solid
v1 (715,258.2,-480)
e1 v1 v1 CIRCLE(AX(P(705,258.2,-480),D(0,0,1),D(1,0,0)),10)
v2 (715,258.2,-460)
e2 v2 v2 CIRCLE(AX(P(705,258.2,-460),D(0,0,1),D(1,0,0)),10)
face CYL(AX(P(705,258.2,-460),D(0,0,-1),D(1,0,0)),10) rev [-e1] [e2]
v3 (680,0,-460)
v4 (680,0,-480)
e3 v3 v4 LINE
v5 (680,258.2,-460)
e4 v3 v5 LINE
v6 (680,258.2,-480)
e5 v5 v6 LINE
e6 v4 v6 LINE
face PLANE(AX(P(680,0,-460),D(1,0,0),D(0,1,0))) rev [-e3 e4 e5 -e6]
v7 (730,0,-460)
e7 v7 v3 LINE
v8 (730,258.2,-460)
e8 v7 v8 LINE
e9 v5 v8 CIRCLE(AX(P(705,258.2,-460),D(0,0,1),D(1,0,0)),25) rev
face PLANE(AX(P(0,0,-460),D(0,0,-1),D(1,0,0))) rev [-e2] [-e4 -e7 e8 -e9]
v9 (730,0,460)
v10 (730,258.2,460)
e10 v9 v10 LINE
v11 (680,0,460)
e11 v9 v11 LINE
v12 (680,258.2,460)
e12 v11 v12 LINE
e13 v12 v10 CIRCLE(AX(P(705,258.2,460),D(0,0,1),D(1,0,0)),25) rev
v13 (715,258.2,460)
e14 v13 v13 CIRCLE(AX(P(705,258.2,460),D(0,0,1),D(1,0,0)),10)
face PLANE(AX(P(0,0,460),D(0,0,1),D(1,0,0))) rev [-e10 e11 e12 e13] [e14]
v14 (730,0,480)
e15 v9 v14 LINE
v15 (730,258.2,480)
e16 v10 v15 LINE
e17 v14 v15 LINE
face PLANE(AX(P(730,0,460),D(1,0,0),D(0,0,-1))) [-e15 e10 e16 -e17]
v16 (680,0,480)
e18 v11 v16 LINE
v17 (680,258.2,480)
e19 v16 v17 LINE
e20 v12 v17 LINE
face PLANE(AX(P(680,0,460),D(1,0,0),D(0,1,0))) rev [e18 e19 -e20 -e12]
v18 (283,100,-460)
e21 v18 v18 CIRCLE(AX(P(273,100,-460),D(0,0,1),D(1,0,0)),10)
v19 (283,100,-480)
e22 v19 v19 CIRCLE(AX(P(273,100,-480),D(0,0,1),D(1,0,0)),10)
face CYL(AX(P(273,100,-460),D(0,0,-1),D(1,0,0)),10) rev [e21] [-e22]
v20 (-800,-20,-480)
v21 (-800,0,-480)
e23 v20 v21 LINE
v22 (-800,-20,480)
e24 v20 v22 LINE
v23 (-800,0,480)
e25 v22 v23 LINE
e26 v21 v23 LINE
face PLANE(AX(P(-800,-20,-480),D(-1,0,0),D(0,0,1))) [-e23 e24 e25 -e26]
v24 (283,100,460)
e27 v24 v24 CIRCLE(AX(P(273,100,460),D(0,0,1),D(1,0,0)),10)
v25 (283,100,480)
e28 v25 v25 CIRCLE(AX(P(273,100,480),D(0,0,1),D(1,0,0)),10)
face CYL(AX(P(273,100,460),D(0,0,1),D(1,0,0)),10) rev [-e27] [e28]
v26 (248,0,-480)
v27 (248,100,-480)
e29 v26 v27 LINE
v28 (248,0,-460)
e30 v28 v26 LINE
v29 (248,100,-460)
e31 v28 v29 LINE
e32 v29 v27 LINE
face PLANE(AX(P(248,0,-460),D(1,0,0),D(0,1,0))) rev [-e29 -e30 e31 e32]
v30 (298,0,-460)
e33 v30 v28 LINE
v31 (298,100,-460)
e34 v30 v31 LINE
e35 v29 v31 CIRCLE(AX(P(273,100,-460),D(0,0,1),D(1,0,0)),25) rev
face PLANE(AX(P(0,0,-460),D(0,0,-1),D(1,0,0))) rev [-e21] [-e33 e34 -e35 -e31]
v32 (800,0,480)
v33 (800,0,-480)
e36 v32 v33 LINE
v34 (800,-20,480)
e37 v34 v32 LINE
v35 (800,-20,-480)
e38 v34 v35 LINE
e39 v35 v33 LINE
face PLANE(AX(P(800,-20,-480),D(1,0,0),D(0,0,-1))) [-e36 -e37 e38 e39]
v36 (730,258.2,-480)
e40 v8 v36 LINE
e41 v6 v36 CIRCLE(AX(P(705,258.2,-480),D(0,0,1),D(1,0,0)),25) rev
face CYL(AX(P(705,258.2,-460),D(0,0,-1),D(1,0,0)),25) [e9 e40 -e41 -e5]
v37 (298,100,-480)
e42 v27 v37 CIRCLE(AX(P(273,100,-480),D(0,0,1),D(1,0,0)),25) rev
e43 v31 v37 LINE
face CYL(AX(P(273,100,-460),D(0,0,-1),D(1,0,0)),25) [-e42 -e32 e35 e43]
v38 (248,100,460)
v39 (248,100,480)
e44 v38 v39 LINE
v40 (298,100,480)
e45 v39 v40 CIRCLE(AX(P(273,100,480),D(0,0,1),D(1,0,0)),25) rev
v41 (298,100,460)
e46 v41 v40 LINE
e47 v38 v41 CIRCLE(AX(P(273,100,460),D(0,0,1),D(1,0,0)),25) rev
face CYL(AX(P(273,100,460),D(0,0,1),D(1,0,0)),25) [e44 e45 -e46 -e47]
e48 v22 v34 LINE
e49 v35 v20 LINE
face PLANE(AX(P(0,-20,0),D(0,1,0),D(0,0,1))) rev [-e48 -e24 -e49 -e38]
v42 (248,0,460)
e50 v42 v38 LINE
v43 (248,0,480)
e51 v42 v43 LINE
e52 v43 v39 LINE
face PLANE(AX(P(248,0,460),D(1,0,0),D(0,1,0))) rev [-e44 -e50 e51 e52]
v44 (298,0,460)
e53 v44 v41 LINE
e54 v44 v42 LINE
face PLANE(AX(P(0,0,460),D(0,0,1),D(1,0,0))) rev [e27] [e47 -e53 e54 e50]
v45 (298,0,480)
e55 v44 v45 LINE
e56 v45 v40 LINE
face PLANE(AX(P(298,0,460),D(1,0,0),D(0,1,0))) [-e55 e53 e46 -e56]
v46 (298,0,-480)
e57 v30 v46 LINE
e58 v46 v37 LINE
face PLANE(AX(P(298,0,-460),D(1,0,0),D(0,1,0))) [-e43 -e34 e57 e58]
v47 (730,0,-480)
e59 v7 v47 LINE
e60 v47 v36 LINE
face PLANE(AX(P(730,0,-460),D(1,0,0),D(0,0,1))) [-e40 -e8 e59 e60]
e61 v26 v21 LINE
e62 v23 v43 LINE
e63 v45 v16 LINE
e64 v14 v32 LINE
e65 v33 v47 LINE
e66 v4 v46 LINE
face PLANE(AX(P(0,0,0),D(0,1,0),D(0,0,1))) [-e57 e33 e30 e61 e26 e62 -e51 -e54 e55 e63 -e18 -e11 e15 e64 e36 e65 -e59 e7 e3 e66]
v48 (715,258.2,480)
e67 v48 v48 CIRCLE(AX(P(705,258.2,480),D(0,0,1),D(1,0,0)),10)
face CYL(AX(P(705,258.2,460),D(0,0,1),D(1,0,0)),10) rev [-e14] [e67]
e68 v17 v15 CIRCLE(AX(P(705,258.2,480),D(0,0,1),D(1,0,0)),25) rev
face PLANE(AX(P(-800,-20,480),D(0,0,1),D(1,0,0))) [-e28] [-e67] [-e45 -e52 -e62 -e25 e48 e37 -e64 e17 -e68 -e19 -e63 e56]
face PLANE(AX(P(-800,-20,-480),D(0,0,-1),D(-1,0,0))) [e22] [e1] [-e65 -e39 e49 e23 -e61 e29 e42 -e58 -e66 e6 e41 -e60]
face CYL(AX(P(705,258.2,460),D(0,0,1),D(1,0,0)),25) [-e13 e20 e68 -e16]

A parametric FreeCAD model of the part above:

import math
import FreeCAD as App
import Part
import Sketcher

V = App.Vector


def add_polygon(sketch, points):
    """Adds a closed chain of lines whose ends are joined by coincident constraints."""
    first, n = sketch.GeometryCount, len(points)
    for a, b in zip(points, points[1:] + points[:1]):
        sketch.addGeometry(Part.LineSegment(App.Vector(*a, 0), App.Vector(*b, 0)), False)
    for i in range(n):
        sketch.addConstraint(Sketcher.Constraint("Coincident", first + i, 2, first + (i + 1) % n, 1))

doc = App.newDocument("Part")
body = doc.addObject("PartDesign::Body", "Body")

# Sketch on XZ plane
sketch1 = body.newObject("Sketcher::SketchObject", "Sketch")
sketch1.AttachmentSupport = (doc.getObject("XZ_Plane"), [""])
sketch1.MapMode = "FlatFace"
add_polygon(sketch1, [(-800, -480), (-800, 480), (800, 480), (800, -480)])  # lines 0-3
sketch1.addConstraint(Sketcher.Constraint("Vertical", 0))
sketch1.addConstraint(Sketcher.Constraint("Horizontal", 1))
sketch1.addConstraint(Sketcher.Constraint("Vertical", 2))
sketch1.addConstraint(Sketcher.Constraint("Horizontal", 3))
sketch1.addConstraint(Sketcher.Constraint("Symmetric", 0, 2, 2, 2, -1, 1))
sketch1.addConstraint(Sketcher.Constraint("DistanceX", 1, 1, 1, 2, 1600.0))
sketch1.addConstraint(Sketcher.Constraint("DistanceY", 0, 1, 0, 2, 960.0))
pad1 = body.newObject("PartDesign::Pad", "Pad")
pad1.Profile = sketch1
pad1.Length = 20

# Sketch on XY plane
sketch2 = body.newObject("Sketcher::SketchObject", "Sketch001")
sketch2.AttachmentSupport = (doc.getObject("XY_Plane"), [""])
sketch2.MapMode = "FlatFace"
sketch2.AttachmentOffset = App.Placement(V(0, 0, 480), App.Rotation())
sketch2.addGeometry(Part.LineSegment(V(248, 0, 0), V(298, 0, 0)), False)
sketch2.addGeometry(Part.LineSegment(V(298, 0, 0), V(298, 100, 0)), False)
sketch2.addGeometry(Part.ArcOfCircle(Part.Circle(V(273, 100, 0), V(0, 0, 1), 25), math.radians(0), math.radians(180)), False)
sketch2.addGeometry(Part.LineSegment(V(248, 100, 0), V(248, 0, 0)), False)
sketch2.addGeometry(Part.Circle(V(273, 100, 0), V(0, 0, 1), 10), False)
sketch2.addGeometry(Part.LineSegment(V(680, 258.2, 0), V(680, 0, 0)), False)
sketch2.addGeometry(Part.LineSegment(V(680, 0, 0), V(730, 0, 0)), False)
sketch2.addGeometry(Part.LineSegment(V(730, 0, 0), V(730, 258.2, 0)), False)
sketch2.addGeometry(Part.ArcOfCircle(Part.Circle(V(705, 258.2, 0), V(0, 0, 1), 25), math.radians(0), math.radians(180)), False)
sketch2.addGeometry(Part.Circle(V(705, 258.2, 0), V(0, 0, 1), 10), False)
sketch2.addConstraint(Sketcher.Constraint("Coincident", 0, 2, 1, 1))
sketch2.addConstraint(Sketcher.Constraint("Tangent", 1, 2, 2, 1))
sketch2.addConstraint(Sketcher.Constraint("Tangent", 2, 2, 3, 1))
sketch2.addConstraint(Sketcher.Constraint("Coincident", 3, 2, 0, 1))
sketch2.addConstraint(Sketcher.Constraint("Coincident", 5, 2, 6, 1))
sketch2.addConstraint(Sketcher.Constraint("Coincident", 6, 2, 7, 1))
sketch2.addConstraint(Sketcher.Constraint("Tangent", 7, 2, 8, 1))
sketch2.addConstraint(Sketcher.Constraint("Tangent", 8, 2, 5, 1))
sketch2.addConstraint(Sketcher.Constraint("Horizontal", 0))
sketch2.addConstraint(Sketcher.Constraint("Vertical", 1))
sketch2.addConstraint(Sketcher.Constraint("Vertical", 3))
sketch2.addConstraint(Sketcher.Constraint("Vertical", 5))
sketch2.addConstraint(Sketcher.Constraint("Horizontal", 6))
sketch2.addConstraint(Sketcher.Constraint("Vertical", 7))
sketch2.addConstraint(Sketcher.Constraint("Coincident", 4, 3, 2, 3))
sketch2.addConstraint(Sketcher.Constraint("Coincident", 9, 3, 8, 3))
sketch2.addConstraint(Sketcher.Constraint("Equal", 2, 8))
sketch2.addConstraint(Sketcher.Constraint("Equal", 4, 9))
sketch2.addConstraint(Sketcher.Constraint("PointOnObject", 0, 2, -1))
sketch2.addConstraint(Sketcher.Constraint("PointOnObject", 5, 2, -1))
sketch2.addConstraint(Sketcher.Constraint("Diameter", 4, 20.0))
sketch2.addConstraint(Sketcher.Constraint("Radius", 2, 25.0))
sketch2.addConstraint(Sketcher.Constraint("DistanceY", 1, 1, 1, 2, 100.0))
sketch2.addConstraint(Sketcher.Constraint("DistanceY", 5, 2, 5, 1, 258.2))
sketch2.addConstraint(Sketcher.Constraint("DistanceX", -1, 1, 2, 3, 273.0))
sketch2.addConstraint(Sketcher.Constraint("DistanceX", -1, 1, 8, 3, 705.0))
pad2 = body.newObject("PartDesign::Pad", "Pad001")
pad2.Profile = sketch2
pad2.Length = 20
pad2.Reversed = True
body2 = doc.addObject("PartDesign::Body", "Body001")
doc.recompute()

body2.BaseFeature = body
doc.recompute()

mirroring = doc.addObject("Part::Mirroring", "Mirroring")
mirroring.Source = body
mirroring.Base = V(0, 0, 0)
mirroring.Normal = V(0, 0, 1)
body3 = doc.addObject("PartDesign::Body", "Body002")
body3.BaseFeature = mirroring
boolean = body2.newObject("PartDesign::Boolean", "Boolean")
boolean.Type = "Fuse"
boolean.addObjects([body3])
doc.recompute()
mirroring.Visibility = False

doc.recompute()
